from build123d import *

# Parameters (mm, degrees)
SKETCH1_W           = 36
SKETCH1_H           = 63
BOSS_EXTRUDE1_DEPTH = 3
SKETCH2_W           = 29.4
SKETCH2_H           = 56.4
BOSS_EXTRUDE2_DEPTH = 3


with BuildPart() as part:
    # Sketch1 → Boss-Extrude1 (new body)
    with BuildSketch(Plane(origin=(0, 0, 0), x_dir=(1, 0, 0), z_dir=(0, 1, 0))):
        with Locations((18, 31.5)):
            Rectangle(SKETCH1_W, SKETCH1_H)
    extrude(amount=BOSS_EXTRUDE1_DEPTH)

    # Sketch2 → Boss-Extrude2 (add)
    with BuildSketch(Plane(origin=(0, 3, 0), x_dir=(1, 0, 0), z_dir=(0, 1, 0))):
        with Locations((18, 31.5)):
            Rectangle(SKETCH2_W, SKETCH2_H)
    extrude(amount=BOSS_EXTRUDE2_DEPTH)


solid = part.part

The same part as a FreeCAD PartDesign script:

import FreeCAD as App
import Part
import Sketcher

V = App.Vector
Q = App.Units.Quantity


def add_polygon(sketch, points):
    """Adds a closed chain of lines whose ends are joined by coincident constraints."""
    first, n = sketch.GeometryCount, len(points)
    for a, b in zip(points, points[1:] + points[:1]):
        sketch.addGeometry(Part.LineSegment(App.Vector(*a, 0), App.Vector(*b, 0)), False)
    for i in range(n):
        sketch.addConstraint(Sketcher.Constraint("Coincident", first + i, 2, first + (i + 1) % n, 1))

doc = App.newDocument("Part")
body = doc.addObject("PartDesign::Body", "Body")

# Sketch on XZ plane
sketch1 = body.newObject("Sketcher::SketchObject", "Sketch")
sketch1.AttachmentSupport = (doc.getObject("XZ_Plane"), [""])
sketch1.MapMode = "FlatFace"
add_polygon(sketch1, [(0, -63), (0, 0), (36, 0), (36, -63)])  # lines 0-3
sketch1.addConstraint([
    Sketcher.Constraint("Vertical", 0),
    Sketcher.Constraint("Horizontal", 1),
    Sketcher.Constraint("Vertical", 2),
    Sketcher.Constraint("Horizontal", 3),
    Sketcher.Constraint("Coincident", 0, 2, -1, 1),
    Sketcher.Constraint("DistanceX", 1, 1, 1, 2, Q("36 mm")),
    Sketcher.Constraint("DistanceY", 0, 1, 0, 2, Q("63 mm")),
])
pad1 = body.newObject("PartDesign::Pad", "Pad")
pad1.Profile = sketch1
pad1.Length = 3
pad1.Reversed = True

# Sketch on XZ plane
sketch2 = body.newObject("Sketcher::SketchObject", "Sketch001")
sketch2.AttachmentSupport = (doc.getObject("XZ_Plane"), [""])
sketch2.MapMode = "FlatFace"
sketch2.AttachmentOffset = App.Placement(V(0, 0, -3), App.Rotation())
add_polygon(sketch2, [(3, -60), (3, -3), (33, -3), (33, -60)])  # lines 0-3
sketch2.addConstraint([
    Sketcher.Constraint("Vertical", 0),
    Sketcher.Constraint("Horizontal", 1),
    Sketcher.Constraint("Vertical", 2),
    Sketcher.Constraint("Horizontal", 3),
    Sketcher.Constraint("DistanceX", 1, 1, 1, 2, Q("29.4 mm")),
    Sketcher.Constraint("DistanceY", 0, 1, 0, 2, Q("56.4 mm")),
    Sketcher.Constraint("DistanceX", -1, 1, 0, 2, Q("3.3 mm")),
    Sketcher.Constraint("DistanceY", 0, 2, -1, 1, Q("3.3 mm")),
])
pad2 = body.newObject("PartDesign::Pad", "Pad001")
pad2.Profile = sketch2
pad2.Length = 3
pad2.Reversed = True

doc.recompute()
